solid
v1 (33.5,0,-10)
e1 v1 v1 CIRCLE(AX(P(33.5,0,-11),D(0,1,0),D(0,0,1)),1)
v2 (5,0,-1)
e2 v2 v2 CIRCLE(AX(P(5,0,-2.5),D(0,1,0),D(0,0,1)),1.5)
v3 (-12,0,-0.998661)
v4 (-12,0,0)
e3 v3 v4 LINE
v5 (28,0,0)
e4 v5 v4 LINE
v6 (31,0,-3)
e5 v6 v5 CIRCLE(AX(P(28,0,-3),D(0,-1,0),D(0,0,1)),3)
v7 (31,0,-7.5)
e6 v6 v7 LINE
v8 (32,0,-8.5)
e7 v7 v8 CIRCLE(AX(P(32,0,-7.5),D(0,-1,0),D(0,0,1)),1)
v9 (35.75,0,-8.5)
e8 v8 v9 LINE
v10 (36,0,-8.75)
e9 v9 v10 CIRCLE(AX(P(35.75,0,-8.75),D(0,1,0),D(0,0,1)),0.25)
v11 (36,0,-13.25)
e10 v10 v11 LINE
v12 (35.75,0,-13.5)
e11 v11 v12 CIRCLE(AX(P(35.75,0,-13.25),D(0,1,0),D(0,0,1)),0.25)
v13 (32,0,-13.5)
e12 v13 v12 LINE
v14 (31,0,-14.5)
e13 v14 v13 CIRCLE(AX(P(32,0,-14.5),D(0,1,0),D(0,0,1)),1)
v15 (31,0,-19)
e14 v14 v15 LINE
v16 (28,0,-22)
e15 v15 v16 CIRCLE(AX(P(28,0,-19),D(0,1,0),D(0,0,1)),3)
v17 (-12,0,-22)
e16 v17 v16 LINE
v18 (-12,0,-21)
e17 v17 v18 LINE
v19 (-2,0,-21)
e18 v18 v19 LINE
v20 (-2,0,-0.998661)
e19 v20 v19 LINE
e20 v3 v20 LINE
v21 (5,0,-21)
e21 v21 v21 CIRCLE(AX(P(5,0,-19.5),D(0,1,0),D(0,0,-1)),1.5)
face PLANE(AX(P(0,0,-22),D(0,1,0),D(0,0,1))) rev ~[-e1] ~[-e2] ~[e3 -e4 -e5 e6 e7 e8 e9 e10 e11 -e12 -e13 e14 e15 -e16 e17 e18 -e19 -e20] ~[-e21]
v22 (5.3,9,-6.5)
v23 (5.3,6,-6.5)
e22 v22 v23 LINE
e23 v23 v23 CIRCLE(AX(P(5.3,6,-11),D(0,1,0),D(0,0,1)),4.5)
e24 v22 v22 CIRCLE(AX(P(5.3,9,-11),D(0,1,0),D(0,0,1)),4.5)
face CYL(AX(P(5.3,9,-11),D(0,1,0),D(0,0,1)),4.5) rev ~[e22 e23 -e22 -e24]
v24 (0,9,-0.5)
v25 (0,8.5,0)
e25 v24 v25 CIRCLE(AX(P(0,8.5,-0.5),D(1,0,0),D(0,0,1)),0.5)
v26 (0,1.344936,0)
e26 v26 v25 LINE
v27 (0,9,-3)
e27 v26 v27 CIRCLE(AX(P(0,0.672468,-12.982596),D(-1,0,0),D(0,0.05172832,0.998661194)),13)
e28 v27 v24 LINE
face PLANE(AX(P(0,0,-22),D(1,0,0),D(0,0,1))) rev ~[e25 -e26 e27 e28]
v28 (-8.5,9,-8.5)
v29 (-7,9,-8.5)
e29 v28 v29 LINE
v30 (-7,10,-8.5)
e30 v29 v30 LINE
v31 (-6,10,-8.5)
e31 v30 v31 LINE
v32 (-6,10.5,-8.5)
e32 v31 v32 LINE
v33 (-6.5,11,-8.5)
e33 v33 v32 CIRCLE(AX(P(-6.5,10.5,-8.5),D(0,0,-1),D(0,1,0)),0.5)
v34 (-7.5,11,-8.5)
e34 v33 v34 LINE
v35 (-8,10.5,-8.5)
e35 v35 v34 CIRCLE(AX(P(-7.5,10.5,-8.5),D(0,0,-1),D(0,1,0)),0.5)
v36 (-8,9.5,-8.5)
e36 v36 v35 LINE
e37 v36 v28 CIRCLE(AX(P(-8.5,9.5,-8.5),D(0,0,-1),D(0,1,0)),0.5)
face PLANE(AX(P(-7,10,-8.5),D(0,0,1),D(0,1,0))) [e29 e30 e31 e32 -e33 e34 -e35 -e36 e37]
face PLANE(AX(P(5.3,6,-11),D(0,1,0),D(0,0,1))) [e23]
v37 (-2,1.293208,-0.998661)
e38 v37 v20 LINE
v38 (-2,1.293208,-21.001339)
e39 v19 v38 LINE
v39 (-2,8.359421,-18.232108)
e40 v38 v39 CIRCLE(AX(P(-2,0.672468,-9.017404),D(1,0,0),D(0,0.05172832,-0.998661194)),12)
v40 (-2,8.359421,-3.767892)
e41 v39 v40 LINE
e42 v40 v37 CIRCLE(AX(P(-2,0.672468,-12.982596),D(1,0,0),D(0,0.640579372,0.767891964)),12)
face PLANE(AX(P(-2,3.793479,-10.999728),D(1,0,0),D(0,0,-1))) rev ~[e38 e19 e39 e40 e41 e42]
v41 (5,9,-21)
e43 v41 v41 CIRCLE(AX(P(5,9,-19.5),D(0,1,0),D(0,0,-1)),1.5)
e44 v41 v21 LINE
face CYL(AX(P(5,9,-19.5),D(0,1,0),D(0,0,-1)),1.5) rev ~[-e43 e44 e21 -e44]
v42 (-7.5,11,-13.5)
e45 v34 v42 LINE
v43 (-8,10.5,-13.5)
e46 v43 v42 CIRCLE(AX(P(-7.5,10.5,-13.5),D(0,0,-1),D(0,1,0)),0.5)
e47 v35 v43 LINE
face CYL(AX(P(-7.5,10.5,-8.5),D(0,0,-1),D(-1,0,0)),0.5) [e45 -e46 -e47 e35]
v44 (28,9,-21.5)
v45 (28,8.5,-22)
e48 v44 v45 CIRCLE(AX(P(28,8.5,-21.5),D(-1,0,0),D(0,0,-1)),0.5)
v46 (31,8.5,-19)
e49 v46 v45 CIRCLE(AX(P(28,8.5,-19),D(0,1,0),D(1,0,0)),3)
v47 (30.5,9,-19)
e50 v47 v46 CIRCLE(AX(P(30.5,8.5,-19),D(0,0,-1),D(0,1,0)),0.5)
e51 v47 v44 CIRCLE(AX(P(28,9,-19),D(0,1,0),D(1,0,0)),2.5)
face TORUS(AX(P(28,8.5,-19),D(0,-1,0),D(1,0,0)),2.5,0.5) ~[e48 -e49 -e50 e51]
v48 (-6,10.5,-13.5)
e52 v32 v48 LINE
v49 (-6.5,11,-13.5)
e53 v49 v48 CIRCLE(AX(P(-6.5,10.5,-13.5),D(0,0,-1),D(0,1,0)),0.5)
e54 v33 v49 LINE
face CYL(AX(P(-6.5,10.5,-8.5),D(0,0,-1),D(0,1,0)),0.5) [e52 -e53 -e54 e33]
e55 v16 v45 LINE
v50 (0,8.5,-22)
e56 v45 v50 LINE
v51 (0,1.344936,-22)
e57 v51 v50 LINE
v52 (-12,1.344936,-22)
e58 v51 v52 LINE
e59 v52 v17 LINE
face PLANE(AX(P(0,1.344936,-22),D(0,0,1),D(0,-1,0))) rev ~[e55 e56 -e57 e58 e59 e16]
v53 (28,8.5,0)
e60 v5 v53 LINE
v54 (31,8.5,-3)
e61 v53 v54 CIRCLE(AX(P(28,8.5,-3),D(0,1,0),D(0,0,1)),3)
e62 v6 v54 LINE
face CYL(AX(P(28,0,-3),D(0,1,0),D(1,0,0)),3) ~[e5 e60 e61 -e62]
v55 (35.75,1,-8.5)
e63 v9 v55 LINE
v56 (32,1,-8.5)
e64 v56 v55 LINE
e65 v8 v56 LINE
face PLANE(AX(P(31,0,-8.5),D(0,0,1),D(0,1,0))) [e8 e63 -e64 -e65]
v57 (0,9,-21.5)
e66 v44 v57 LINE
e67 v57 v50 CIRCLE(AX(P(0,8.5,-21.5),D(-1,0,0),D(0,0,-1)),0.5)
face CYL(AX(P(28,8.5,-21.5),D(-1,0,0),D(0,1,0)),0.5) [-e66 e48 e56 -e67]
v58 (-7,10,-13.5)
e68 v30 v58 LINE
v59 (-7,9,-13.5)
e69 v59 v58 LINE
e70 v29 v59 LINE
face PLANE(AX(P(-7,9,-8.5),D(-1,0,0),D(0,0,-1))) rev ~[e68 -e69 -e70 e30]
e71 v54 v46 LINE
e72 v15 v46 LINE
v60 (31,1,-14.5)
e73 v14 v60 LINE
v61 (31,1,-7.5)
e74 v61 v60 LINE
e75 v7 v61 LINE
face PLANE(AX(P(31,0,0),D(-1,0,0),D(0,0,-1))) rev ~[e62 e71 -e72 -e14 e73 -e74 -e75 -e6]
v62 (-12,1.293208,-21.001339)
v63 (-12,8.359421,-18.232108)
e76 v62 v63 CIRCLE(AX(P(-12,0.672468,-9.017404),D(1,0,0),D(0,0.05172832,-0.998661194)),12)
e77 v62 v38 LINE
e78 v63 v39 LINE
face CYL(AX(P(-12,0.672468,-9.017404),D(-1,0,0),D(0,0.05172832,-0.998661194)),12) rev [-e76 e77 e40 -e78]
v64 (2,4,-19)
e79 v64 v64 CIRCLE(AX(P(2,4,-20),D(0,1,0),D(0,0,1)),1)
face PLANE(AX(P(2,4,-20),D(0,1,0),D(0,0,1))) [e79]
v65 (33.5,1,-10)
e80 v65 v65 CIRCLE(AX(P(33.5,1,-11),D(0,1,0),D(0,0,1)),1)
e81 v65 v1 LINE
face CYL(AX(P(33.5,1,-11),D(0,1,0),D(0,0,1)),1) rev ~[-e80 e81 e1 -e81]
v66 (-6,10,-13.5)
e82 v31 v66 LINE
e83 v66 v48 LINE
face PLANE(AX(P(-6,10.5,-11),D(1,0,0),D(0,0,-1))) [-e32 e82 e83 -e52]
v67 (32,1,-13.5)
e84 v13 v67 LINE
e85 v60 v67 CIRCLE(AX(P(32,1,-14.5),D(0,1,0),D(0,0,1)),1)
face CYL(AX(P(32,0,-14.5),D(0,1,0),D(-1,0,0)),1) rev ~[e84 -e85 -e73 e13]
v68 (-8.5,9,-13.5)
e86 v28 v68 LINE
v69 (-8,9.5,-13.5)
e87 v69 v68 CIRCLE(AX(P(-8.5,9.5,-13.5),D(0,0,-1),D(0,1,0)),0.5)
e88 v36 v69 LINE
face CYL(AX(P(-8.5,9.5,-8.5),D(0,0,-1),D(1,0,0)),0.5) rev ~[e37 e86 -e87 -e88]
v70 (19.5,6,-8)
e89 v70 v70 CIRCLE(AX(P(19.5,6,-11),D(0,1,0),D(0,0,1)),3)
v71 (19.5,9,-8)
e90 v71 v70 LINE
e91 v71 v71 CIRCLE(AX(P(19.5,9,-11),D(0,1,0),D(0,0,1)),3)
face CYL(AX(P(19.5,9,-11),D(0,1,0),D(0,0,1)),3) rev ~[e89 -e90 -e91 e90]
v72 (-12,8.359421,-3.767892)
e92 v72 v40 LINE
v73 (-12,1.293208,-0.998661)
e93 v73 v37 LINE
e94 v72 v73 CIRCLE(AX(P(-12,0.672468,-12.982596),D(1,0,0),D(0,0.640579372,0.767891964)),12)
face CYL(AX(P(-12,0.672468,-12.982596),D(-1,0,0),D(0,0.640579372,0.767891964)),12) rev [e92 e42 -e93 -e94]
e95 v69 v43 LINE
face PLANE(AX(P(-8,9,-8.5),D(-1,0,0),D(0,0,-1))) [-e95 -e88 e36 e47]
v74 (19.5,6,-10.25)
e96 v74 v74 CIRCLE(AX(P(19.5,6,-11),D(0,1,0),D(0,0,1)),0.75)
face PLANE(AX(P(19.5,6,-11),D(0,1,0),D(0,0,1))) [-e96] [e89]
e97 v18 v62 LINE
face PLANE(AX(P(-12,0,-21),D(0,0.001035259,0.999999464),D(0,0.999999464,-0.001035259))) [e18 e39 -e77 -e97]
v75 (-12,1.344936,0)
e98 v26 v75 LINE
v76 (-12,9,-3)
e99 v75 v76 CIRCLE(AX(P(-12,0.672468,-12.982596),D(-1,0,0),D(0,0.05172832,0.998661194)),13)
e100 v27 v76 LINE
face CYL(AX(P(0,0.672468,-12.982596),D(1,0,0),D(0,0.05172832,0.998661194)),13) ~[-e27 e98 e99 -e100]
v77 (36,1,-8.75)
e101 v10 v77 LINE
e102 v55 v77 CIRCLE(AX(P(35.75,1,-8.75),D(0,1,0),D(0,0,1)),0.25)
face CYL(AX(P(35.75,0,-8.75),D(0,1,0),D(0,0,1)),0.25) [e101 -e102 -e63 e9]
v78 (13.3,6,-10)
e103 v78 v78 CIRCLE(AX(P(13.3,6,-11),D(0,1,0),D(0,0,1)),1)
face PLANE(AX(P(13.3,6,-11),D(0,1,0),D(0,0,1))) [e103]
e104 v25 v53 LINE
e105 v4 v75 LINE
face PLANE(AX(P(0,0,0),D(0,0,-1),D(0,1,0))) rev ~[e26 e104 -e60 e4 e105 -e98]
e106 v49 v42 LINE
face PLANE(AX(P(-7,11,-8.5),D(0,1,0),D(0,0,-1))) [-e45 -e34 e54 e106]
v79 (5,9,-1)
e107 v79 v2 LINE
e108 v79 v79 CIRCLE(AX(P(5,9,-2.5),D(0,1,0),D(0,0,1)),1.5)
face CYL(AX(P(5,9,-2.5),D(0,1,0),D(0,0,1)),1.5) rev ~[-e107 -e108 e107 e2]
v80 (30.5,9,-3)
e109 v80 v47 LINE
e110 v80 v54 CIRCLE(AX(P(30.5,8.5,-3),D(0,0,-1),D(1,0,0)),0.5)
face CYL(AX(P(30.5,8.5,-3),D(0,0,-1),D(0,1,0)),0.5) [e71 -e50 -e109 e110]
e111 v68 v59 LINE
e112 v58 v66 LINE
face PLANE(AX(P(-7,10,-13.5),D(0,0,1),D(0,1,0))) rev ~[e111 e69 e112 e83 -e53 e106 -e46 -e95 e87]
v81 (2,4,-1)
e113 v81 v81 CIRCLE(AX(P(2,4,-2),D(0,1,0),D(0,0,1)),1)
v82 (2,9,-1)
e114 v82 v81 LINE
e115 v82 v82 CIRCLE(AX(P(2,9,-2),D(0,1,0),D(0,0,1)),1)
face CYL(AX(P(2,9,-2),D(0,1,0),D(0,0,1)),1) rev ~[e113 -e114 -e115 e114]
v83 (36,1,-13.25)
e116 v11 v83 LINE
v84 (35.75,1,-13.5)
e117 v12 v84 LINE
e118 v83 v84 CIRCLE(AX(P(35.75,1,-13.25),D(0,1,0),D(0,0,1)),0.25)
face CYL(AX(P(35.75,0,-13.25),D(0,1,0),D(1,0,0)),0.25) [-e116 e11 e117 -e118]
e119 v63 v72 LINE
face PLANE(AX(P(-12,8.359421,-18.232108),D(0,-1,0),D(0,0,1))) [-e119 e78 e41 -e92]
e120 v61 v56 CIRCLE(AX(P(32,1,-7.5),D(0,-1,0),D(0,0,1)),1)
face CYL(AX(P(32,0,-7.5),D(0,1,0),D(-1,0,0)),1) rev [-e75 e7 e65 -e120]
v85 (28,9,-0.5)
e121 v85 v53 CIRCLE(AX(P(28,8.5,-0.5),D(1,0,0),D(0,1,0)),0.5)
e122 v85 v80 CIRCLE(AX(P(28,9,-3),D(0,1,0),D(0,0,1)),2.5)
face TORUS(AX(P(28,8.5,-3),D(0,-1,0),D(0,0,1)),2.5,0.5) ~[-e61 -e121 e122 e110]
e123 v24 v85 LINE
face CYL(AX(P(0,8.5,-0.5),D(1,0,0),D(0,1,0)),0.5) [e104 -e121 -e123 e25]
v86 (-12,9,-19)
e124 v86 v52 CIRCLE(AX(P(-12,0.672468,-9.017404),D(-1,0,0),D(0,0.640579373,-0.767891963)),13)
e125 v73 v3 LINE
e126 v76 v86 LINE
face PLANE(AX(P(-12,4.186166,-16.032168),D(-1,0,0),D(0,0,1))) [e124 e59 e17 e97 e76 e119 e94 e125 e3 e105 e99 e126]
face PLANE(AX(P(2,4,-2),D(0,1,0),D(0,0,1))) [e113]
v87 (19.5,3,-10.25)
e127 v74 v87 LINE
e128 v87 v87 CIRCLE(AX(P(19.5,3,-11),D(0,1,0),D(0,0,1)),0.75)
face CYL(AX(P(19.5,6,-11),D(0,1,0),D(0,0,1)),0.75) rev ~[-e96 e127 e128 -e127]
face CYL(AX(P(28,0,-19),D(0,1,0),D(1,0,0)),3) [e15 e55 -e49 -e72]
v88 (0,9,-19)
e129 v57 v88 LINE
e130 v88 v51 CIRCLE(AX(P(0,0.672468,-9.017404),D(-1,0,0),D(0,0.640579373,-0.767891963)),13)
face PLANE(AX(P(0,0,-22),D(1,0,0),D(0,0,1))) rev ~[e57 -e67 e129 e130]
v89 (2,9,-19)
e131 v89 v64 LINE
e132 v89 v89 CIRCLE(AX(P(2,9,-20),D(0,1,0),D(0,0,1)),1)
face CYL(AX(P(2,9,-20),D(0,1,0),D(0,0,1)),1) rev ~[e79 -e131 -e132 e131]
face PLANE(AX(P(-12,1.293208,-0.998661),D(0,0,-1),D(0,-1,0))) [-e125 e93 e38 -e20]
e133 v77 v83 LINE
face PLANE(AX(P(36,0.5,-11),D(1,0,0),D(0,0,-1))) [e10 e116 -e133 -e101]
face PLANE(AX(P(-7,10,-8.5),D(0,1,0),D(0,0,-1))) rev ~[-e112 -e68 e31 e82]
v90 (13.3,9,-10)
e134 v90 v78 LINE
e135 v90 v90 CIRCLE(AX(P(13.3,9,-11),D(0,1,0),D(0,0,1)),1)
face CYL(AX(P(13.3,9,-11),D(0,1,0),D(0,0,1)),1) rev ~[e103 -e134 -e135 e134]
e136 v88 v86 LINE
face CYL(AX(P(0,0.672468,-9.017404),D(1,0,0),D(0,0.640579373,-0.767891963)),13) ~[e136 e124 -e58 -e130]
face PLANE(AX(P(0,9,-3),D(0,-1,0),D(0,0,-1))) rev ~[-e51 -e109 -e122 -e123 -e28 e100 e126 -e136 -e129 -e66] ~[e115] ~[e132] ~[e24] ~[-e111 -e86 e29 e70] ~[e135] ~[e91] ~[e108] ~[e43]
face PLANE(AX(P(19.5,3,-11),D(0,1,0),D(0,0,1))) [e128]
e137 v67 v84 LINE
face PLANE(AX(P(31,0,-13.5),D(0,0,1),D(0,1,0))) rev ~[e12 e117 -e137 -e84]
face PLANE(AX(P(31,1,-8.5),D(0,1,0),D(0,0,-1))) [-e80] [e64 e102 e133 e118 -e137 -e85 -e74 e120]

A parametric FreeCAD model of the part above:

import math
import FreeCAD as App
import Part
import Sketcher
from FreeCAD import Vector


def edges_at(feature, points):
    """Names of the edges that pass closest to the given points."""
    edges = feature.Shape.Edges
    near = lambda p: min(range(len(edges)), key=lambda i: edges[i].distToShape(Part.Vertex(*p))[0])
    return sorted({f"Edge{near(p) + 1}" for p in points})

doc = App.newDocument("Part")
params = doc.addObject("Spreadsheet::Sheet", "Params")
for row, (alias, value) in enumerate([
    ("sketch1_width", "31 mm"),
    ("sketch1_height", "22 mm"),
    ("pad1_length", "9 mm"),
    ("sketch2_width", "1 mm"),
    ("sketch2_height", "5 mm"),
    ("pad2_length", "5 mm"),
    ("sketch3_diameter", "2 mm"),
    ("pocket1_length", "5 mm"),
    ("fillet_radius", "1 mm"),
    ("fillet2_radius", "1 mm"),
    ("fillet3_radius", "3 mm"),
    ("fillet4_radius", "3 mm"),
    ("sketch4_radius", "13 mm"),
    ("sketch4_height", "22 mm"),
    ("sketch4_height2", "16 mm"),
    ("pad3_length", "12 mm"),
    ("fillet5_radius", "0.5 mm"),
    ("fillet6_radius", "0.25 mm"),
    ("sketch5_diameter", "6 mm"),
    ("pocket2_length", "3 mm"),
    ("sketch6_diameter", "1.5 mm"),
    ("pocket3_length", "3 mm"),
    ("sketch7_diameter", "3 mm"),
    ("sketch8_diameter", "2 mm"),
    ("pocket5_length", "5 mm"),
    ("sketch9_width", "1 mm"),
    ("sketch9_height", "5 mm"),
    ("pad4_length", "2 mm"),
    ("sketch10_width", "1 mm"),
    ("sketch10_height", "5 mm"),
    ("pad5_length", "1 mm"),
    ("fillet7_radius", "0.5 mm"),
    ("fillet8_radius", "0.5 mm"),
    ("fillet9_radius", "0.5 mm"),
    ("sketch11_radius", "12 mm"),
    ("pocket6_length", "10 mm"),
    ("sketch12_diameter", "9 mm"),
    ("sketch12_diameter2", "2 mm"),
    ("pocket7_length", "3 mm"),
], start=1):
    params.set(f"A{row}", alias)
    params.set(f"B{row}", "=" + value)
    params.setAlias(f"B{row}", alias)

body = doc.addObject("PartDesign::Body", "Body")

# Sketch on XZ plane
sketch1 = body.newObject("Sketcher::SketchObject", "Sketch")
sketch1.AttachmentSupport = (doc.getObject("XZ_Plane"), [""])
sketch1.MapMode = "FlatFace"
sketch1.addGeometry(Part.LineSegment(Vector(31, -22, 0), Vector(0, -22, 0)), False)
sketch1.addGeometry(Part.LineSegment(Vector(0, -22, 0), Vector(0, 0, 0)), False)
sketch1.addGeometry(Part.LineSegment(Vector(0, 0, 0), Vector(31, 0, 0)), False)
sketch1.addGeometry(Part.LineSegment(Vector(31, 0, 0), Vector(31, -22, 0)), False)
sketch1.addConstraint(Sketcher.Constraint("Coincident", 0, 2, 1, 1))
sketch1.addConstraint(Sketcher.Constraint("Coincident", 1, 2, 2, 1))
sketch1.addConstraint(Sketcher.Constraint("Coincident", 2, 2, 3, 1))
sketch1.addConstraint(Sketcher.Constraint("Coincident", 3, 2, 0, 1))
sketch1.addConstraint(Sketcher.Constraint("Horizontal", 0))
sketch1.addConstraint(Sketcher.Constraint("Vertical", 1))
sketch1.addConstraint(Sketcher.Constraint("Horizontal", 2))
sketch1.addConstraint(Sketcher.Constraint("Vertical", 3))
sketch1.addConstraint(Sketcher.Constraint("Coincident", 1, 2, -1, 1))
sketch1.addConstraint(Sketcher.Constraint("DistanceX", 0, 2, 0, 1, 31.0))
sketch1.addConstraint(Sketcher.Constraint("DistanceY", 1, 1, 1, 2, 22.0))
sketch1.setExpression("Constraints[9]", "Params.sketch1_width")
sketch1.setExpression("Constraints[10]", "Params.sketch1_height")
pad1 = body.newObject("PartDesign::Pad", "Pad")
pad1.Profile = sketch1
pad1.setExpression("Length", "Params.pad1_length")
pad1.Reversed = True

# Sketch on YZ plane
sketch2 = body.newObject("Sketcher::SketchObject", "Sketch001")
sketch2.AttachmentSupport = (doc.getObject("YZ_Plane"), [""])
sketch2.MapMode = "FlatFace"
sketch2.AttachmentOffset = App.Placement(Vector(0, 0, 31), App.Rotation())
sketch2.addGeometry(Part.LineSegment(Vector(1, -8.5, 0), Vector(0, -8.5, 0)), False)
sketch2.addGeometry(Part.LineSegment(Vector(0, -8.5, 0), Vector(0, -13.5, 0)), False)
sketch2.addGeometry(Part.LineSegment(Vector(0, -13.5, 0), Vector(1, -13.5, 0)), False)
sketch2.addGeometry(Part.LineSegment(Vector(1, -13.5, 0), Vector(1, -8.5, 0)), False)
sketch2.addConstraint(Sketcher.Constraint("Coincident", 0, 2, 1, 1))
sketch2.addConstraint(Sketcher.Constraint("Coincident", 1, 2, 2, 1))
sketch2.addConstraint(Sketcher.Constraint("Coincident", 2, 2, 3, 1))
sketch2.addConstraint(Sketcher.Constraint("Coincident", 3, 2, 0, 1))
sketch2.addConstraint(Sketcher.Constraint("Horizontal", 0))
sketch2.addConstraint(Sketcher.Constraint("Vertical", 1))
sketch2.addConstraint(Sketcher.Constraint("Horizontal", 2))
sketch2.addConstraint(Sketcher.Constraint("Vertical", 3))
sketch2.addConstraint(Sketcher.Constraint("PointOnObject", 0, 2, -2))
sketch2.addConstraint(Sketcher.Constraint("DistanceX", 0, 2, 0, 1, 1.0))
sketch2.addConstraint(Sketcher.Constraint("DistanceY", 1, 2, 1, 1, 5.0))
sketch2.addConstraint(Sketcher.Constraint("DistanceY", 0, 2, -1, 1, 8.5))
sketch2.setExpression("Constraints[9]", "Params.sketch2_width")
sketch2.setExpression("Constraints[10]", "Params.sketch2_height")
pad2 = body.newObject("PartDesign::Pad", "Pad001")
pad2.Profile = sketch2
pad2.setExpression("Length", "Params.pad2_length")

# Sketch on XZ plane
sketch3 = body.newObject("Sketcher::SketchObject", "Sketch002")
sketch3.AttachmentSupport = (doc.getObject("XZ_Plane"), [""])
sketch3.MapMode = "FlatFace"
sketch3.AttachmentOffset = App.Placement(Vector(0, 0, -1), App.Rotation())
sketch3.addGeometry(Part.Circle(Vector(33.5, -11, 0), Vector(0, 0, 1), 1), False)
sketch3.addConstraint(Sketcher.Constraint("Diameter", 0, 2.0))
sketch3.addConstraint(Sketcher.Constraint("DistanceY", 0, 3, -1, 1, 11.0))
sketch3.addConstraint(Sketcher.Constraint("DistanceX", -1, 1, 0, 3, 33.5))
sketch3.setExpression("Constraints[0]", "Params.sketch3_diameter")
pocket1 = body.newObject("PartDesign::Pocket", "Pocket")
pocket1.Profile = sketch3
pocket1.setExpression("Length", "Params.pocket1_length")
pocket1.Reversed = True
doc.recompute()

fillet = body.newObject("PartDesign::Fillet", "Fillet")
fillet.Base = (pocket1, edges_at(pocket1, [(31, 0.5, -8.5)]))
fillet.setExpression("Radius", "Params.fillet_radius")
doc.recompute()

fillet2 = body.newObject("PartDesign::Fillet", "Fillet001")
fillet2.Base = (fillet, edges_at(fillet, [(31, 0.5, -13.5)]))
fillet2.setExpression("Radius", "Params.fillet2_radius")
doc.recompute()

fillet3 = body.newObject("PartDesign::Fillet", "Fillet002")
fillet3.Base = (fillet2, edges_at(fillet2, [(31, 4.5, 0)]))
fillet3.setExpression("Radius", "Params.fillet3_radius")
doc.recompute()

fillet4 = body.newObject("PartDesign::Fillet", "Fillet003")
fillet4.Base = (fillet3, edges_at(fillet3, [(31, 4.5, -22)]))
fillet4.setExpression("Radius", "Params.fillet4_radius")

# Sketch on YZ plane
sketch4 = body.newObject("Sketcher::SketchObject", "Sketch003")
sketch4.AttachmentSupport = (doc.getObject("YZ_Plane"), [""])
sketch4.MapMode = "FlatFace"
sketch4.addGeometry(Part.LineSegment(Vector(0, -22, 0), Vector(0, 0, 0)), False)
sketch4.addGeometry(Part.LineSegment(Vector(0, 0, 0), Vector(1.344936, 0, 0)), False)
sketch4.addGeometry(Part.ArcOfCircle(Part.Circle(Vector(0.672468, -12.982596, 0), Vector(0, 0, 1), 13), math.radians(50.164965), math.radians(87.034862)), False)
sketch4.addGeometry(Part.LineSegment(Vector(9, -3, 0), Vector(9, -19, 0)), False)
sketch4.addGeometry(Part.ArcOfCircle(Part.Circle(Vector(0.672468, -9.017404, 0), Vector(0, 0, 1), 13), math.radians(-87.034862), math.radians(-50.164965)), False)
sketch4.addGeometry(Part.LineSegment(Vector(1.344936, -22, 0), Vector(0, -22, 0)), False)
sketch4.addConstraint(Sketcher.Constraint("Coincident", 0, 2, 1, 1))
sketch4.addConstraint(Sketcher.Constraint("Coincident", 1, 2, 2, 2))
sketch4.addConstraint(Sketcher.Constraint("Coincident", 2, 1, 3, 1))
sketch4.addConstraint(Sketcher.Constraint("Coincident", 3, 2, 4, 2))
sketch4.addConstraint(Sketcher.Constraint("Coincident", 4, 1, 5, 1))
sketch4.addConstraint(Sketcher.Constraint("Coincident", 5, 2, 0, 1))
sketch4.addConstraint(Sketcher.Constraint("Vertical", 0))
sketch4.addConstraint(Sketcher.Constraint("Horizontal", 1))
sketch4.addConstraint(Sketcher.Constraint("Vertical", 3))
sketch4.addConstraint(Sketcher.Constraint("Horizontal", 5))
sketch4.addConstraint(Sketcher.Constraint("Coincident", 0, 2, -1, 1))
sketch4.addConstraint(Sketcher.Constraint("Equal", 2, 4))
sketch4.addConstraint(Sketcher.Constraint("Vertical", 2, 3, 4, 3))
sketch4.addConstraint(Sketcher.Constraint("Vertical", 1, 2, 4, 1))
sketch4.addConstraint(Sketcher.Constraint("Radius", 2, 13.0))
sketch4.addConstraint(Sketcher.Constraint("DistanceY", 0, 1, 0, 2, 22.0))
sketch4.addConstraint(Sketcher.Constraint("DistanceY", 3, 2, 3, 1, 16.0))
sketch4.addConstraint(Sketcher.Constraint("DistanceX", -1, 1, 2, 1, 9.0))
sketch4.addConstraint(Sketcher.Constraint("DistanceX", 1, 1, 1, 2, 1.344936))
sketch4.setExpression("Constraints[14]", "Params.sketch4_radius")
sketch4.setExpression("Constraints[15]", "Params.sketch4_height")
sketch4.setExpression("Constraints[16]", "Params.sketch4_height2")
pad3 = body.newObject("PartDesign::Pad", "Pad002")
pad3.Profile = sketch4
pad3.setExpression("Length", "Params.pad3_length")
pad3.Reversed = True
doc.recompute()

fillet5 = body.newObject("PartDesign::Fillet", "Fillet004")
fillet5.Base = (pad3, edges_at(pad3, [
    (14, 9, -22),
    (30.121, 9, -21.121),
    (31, 9, -11),
    (30.121, 9, -0.879),
    (14, 9, 0),
]))
fillet5.setExpression("Radius", "Params.fillet5_radius")
doc.recompute()

fillet6 = body.newObject("PartDesign::Fillet", "Fillet005")
fillet6.Base = (fillet5, edges_at(fillet5, [(36, 0.5, -13.5), (36, 0.5, -8.5)]))
fillet6.setExpression("Radius", "Params.fillet6_radius")

# Sketch on XZ plane
sketch5 = body.newObject("Sketcher::SketchObject", "Sketch004")
sketch5.AttachmentSupport = (doc.getObject("XZ_Plane"), [""])
sketch5.MapMode = "FlatFace"
sketch5.AttachmentOffset = App.Placement(Vector(0, 0, -9), App.Rotation())
sketch5.addGeometry(Part.Circle(Vector(19.5, -11, 0), Vector(0, 0, 1), 3), False)
sketch5.addConstraint(Sketcher.Constraint("Diameter", 0, 6.0))
sketch5.addConstraint(Sketcher.Constraint("DistanceY", 0, 3, -1, 1, 11.0))
sketch5.addConstraint(Sketcher.Constraint("DistanceX", -1, 1, 0, 3, 19.5))
sketch5.setExpression("Constraints[0]", "Params.sketch5_diameter")
pocket2 = body.newObject("PartDesign::Pocket", "Pocket001")
pocket2.Profile = sketch5
pocket2.setExpression("Length", "Params.pocket2_length")
pocket2.Reversed = True

# Sketch on XZ plane
sketch6 = body.newObject("Sketcher::SketchObject", "Sketch005")
sketch6.AttachmentSupport = (doc.getObject("XZ_Plane"), [""])
sketch6.MapMode = "FlatFace"
sketch6.AttachmentOffset = App.Placement(Vector(0, 0, -6), App.Rotation())
sketch6.addGeometry(Part.Circle(Vector(19.5, -11, 0), Vector(0, 0, 1), 0.75), False)
sketch6.addConstraint(Sketcher.Constraint("Diameter", 0, 1.5))
sketch6.addConstraint(Sketcher.Constraint("DistanceY", 0, 3, -1, 1, 11.0))
sketch6.addConstraint(Sketcher.Constraint("DistanceX", -1, 1, 0, 3, 19.5))
sketch6.setExpression("Constraints[0]", "Params.sketch6_diameter")
pocket3 = body.newObject("PartDesign::Pocket", "Pocket002")
pocket3.Profile = sketch6
pocket3.setExpression("Length", "Params.pocket3_length")
pocket3.Reversed = True

# Sketch on XZ plane
sketch7 = body.newObject("Sketcher::SketchObject", "Sketch006")
sketch7.AttachmentSupport = (doc.getObject("XZ_Plane"), [""])
sketch7.MapMode = "FlatFace"
sketch7.AttachmentOffset = App.Placement(Vector(0, 0, -9), App.Rotation())
sketch7.addGeometry(Part.Circle(Vector(5, -19.5, 0), Vector(0, 0, 1), 1.5), False)
sketch7.addGeometry(Part.Circle(Vector(5, -2.5, 0), Vector(0, 0, 1), 1.5), False)
sketch7.addConstraint(Sketcher.Constraint("Equal", 0, 1))
sketch7.addConstraint(Sketcher.Constraint("Vertical", 0, 3, 1, 3))
sketch7.addConstraint(Sketcher.Constraint("Diameter", 0, 3.0))
sketch7.addConstraint(Sketcher.Constraint("DistanceX", -1, 1, 0, 3, 5.0))
sketch7.addConstraint(Sketcher.Constraint("DistanceY", 0, 3, 1, 3, 17.0))
sketch7.addConstraint(Sketcher.Constraint("DistanceY", 0, 3, -1, 1, 19.5))
sketch7.setExpression("Constraints[2]", "Params.sketch7_diameter")
pocket4 = body.newObject("PartDesign::Pocket", "Pocket003")
pocket4.Profile = sketch7
pocket4.Type = "ThroughAll"
pocket4.Reversed = True

# Sketch on XZ plane
sketch8 = body.newObject("Sketcher::SketchObject", "Sketch007")
sketch8.AttachmentSupport = (doc.getObject("XZ_Plane"), [""])
sketch8.MapMode = "FlatFace"
sketch8.AttachmentOffset = App.Placement(Vector(0, 0, -9), App.Rotation())
sketch8.addGeometry(Part.Circle(Vector(2, -2, 0), Vector(0, 0, 1), 1), False)
sketch8.addGeometry(Part.Circle(Vector(2, -20, 0), Vector(0, 0, 1), 1), False)
sketch8.addConstraint(Sketcher.Constraint("Equal", 0, 1))
sketch8.addConstraint(Sketcher.Constraint("Vertical", 0, 3, 1, 3))
sketch8.addConstraint(Sketcher.Constraint("Diameter", 0, 2.0))
sketch8.addConstraint(Sketcher.Constraint("DistanceX", -1, 1, 0, 3, 2.0))
sketch8.addConstraint(Sketcher.Constraint("DistanceY", 0, 3, -1, 1, 2.0))
sketch8.addConstraint(Sketcher.Constraint("DistanceY", 1, 3, -1, 1, 20.0))
sketch8.setExpression("Constraints[2]", "Params.sketch8_diameter")
pocket5 = body.newObject("PartDesign::Pocket", "Pocket004")
pocket5.Profile = sketch8
pocket5.setExpression("Length", "Params.pocket5_length")
pocket5.Reversed = True

# Sketch on XZ plane
sketch9 = body.newObject("Sketcher::SketchObject", "Sketch008")
sketch9.AttachmentSupport = (doc.getObject("XZ_Plane"), [""])
sketch9.MapMode = "FlatFace"
sketch9.AttachmentOffset = App.Placement(Vector(0, 0, -9), App.Rotation())
sketch9.addGeometry(Part.LineSegment(Vector(-8, -13.5, 0), Vector(-8, -8.5, 0)), False)
sketch9.addGeometry(Part.LineSegment(Vector(-8, -8.5, 0), Vector(-7, -8.5, 0)), False)
sketch9.addGeometry(Part.LineSegment(Vector(-7, -8.5, 0), Vector(-7, -13.5, 0)), False)
sketch9.addGeometry(Part.LineSegment(Vector(-7, -13.5, 0), Vector(-8, -13.5, 0)), False)
sketch9.addConstraint(Sketcher.Constraint("Coincident", 0, 2, 1, 1))
sketch9.addConstraint(Sketcher.Constraint("Coincident", 1, 2, 2, 1))
sketch9.addConstraint(Sketcher.Constraint("Coincident", 2, 2, 3, 1))
sketch9.addConstraint(Sketcher.Constraint("Coincident", 3, 2, 0, 1))
sketch9.addConstraint(Sketcher.Constraint("Vertical", 0))
sketch9.addConstraint(Sketcher.Constraint("Horizontal", 1))
sketch9.addConstraint(Sketcher.Constraint("Vertical", 2))
sketch9.addConstraint(Sketcher.Constraint("Horizontal", 3))
sketch9.addConstraint(Sketcher.Constraint("DistanceX", 1, 1, 1, 2, 1.0))
sketch9.addConstraint(Sketcher.Constraint("DistanceY", 0, 1, 0, 2, 5.0))
sketch9.addConstraint(Sketcher.Constraint("DistanceX", 0, 2, -1, 1, 8.0))
sketch9.addConstraint(Sketcher.Constraint("DistanceY", 0, 2, -1, 1, 8.5))
sketch9.setExpression("Constraints[8]", "Params.sketch9_width")
sketch9.setExpression("Constraints[9]", "Params.sketch9_height")
pad4 = body.newObject("PartDesign::Pad", "Pad003")
pad4.Profile = sketch9
pad4.setExpression("Length", "Params.pad4_length")
pad4.Reversed = True

# Sketch on YZ plane
sketch10 = body.newObject("Sketcher::SketchObject", "Sketch009")
sketch10.AttachmentSupport = (doc.getObject("YZ_Plane"), [""])
sketch10.MapMode = "FlatFace"
sketch10.AttachmentOffset = App.Placement(Vector(0, 0, -7), App.Rotation())
sketch10.addGeometry(Part.LineSegment(Vector(11, -8.5, 0), Vector(10, -8.5, 0)), False)
sketch10.addGeometry(Part.LineSegment(Vector(10, -8.5, 0), Vector(10, -13.5, 0)), False)
sketch10.addGeometry(Part.LineSegment(Vector(10, -13.5, 0), Vector(11, -13.5, 0)), False)
sketch10.addGeometry(Part.LineSegment(Vector(11, -13.5, 0), Vector(11, -8.5, 0)), False)
sketch10.addConstraint(Sketcher.Constraint("Coincident", 0, 2, 1, 1))
sketch10.addConstraint(Sketcher.Constraint("Coincident", 1, 2, 2, 1))
sketch10.addConstraint(Sketcher.Constraint("Coincident", 2, 2, 3, 1))
sketch10.addConstraint(Sketcher.Constraint("Coincident", 3, 2, 0, 1))
sketch10.addConstraint(Sketcher.Constraint("Horizontal", 0))
sketch10.addConstraint(Sketcher.Constraint("Vertical", 1))
sketch10.addConstraint(Sketcher.Constraint("Horizontal", 2))
sketch10.addConstraint(Sketcher.Constraint("Vertical", 3))
sketch10.addConstraint(Sketcher.Constraint("DistanceX", 0, 2, 0, 1, 1.0))
sketch10.addConstraint(Sketcher.Constraint("DistanceY", 1, 2, 1, 1, 5.0))
sketch10.addConstraint(Sketcher.Constraint("DistanceX", -1, 1, 0, 2, 10.0))
sketch10.addConstraint(Sketcher.Constraint("DistanceY", 0, 2, -1, 1, 8.5))
sketch10.setExpression("Constraints[8]", "Params.sketch10_width")
sketch10.setExpression("Constraints[9]", "Params.sketch10_height")
pad5 = body.newObject("PartDesign::Pad", "Pad004")
pad5.Profile = sketch10
pad5.setExpression("Length", "Params.pad5_length")
doc.recompute()

fillet7 = body.newObject("PartDesign::Fillet", "Fillet006")
fillet7.Base = (pad5, edges_at(pad5, [(-8, 11, -11)]))
fillet7.setExpression("Radius", "Params.fillet7_radius")
doc.recompute()

fillet8 = body.newObject("PartDesign::Fillet", "Fillet007")
fillet8.Base = (fillet7, edges_at(fillet7, [(-8, 9, -11)]))
fillet8.setExpression("Radius", "Params.fillet8_radius")
doc.recompute()

fillet9 = body.newObject("PartDesign::Fillet", "Fillet008")
fillet9.Base = (fillet8, edges_at(fillet8, [(-6, 11, -11)]))
fillet9.setExpression("Radius", "Params.fillet9_radius")

# Sketch on YZ plane
sketch11 = body.newObject("Sketcher::SketchObject", "Sketch010")
sketch11.AttachmentSupport = (doc.getObject("YZ_Plane"), [""])
sketch11.MapMode = "FlatFace"
sketch11.AttachmentOffset = App.Placement(Vector(0, 0, -12), App.Rotation())
sketch11.addGeometry(Part.LineSegment(Vector(8.359421, -3.767892, 0), Vector(8.359421, -18.232108, 0)), False)
sketch11.addGeometry(Part.ArcOfCircle(Part.Circle(Vector(0.672468, -9.017404, 0), Vector(0, 0, 1), 12), math.radians(-87.034862), math.radians(-50.164965)), False)
sketch11.addGeometry(Part.LineSegment(Vector(1.293208, -21.001339, 0), Vector(0, -21, 0)), False)
sketch11.addGeometry(Part.LineSegment(Vector(0, -21, 0), Vector(0, -0.998661, 0)), False)
sketch11.addGeometry(Part.LineSegment(Vector(0, -0.998661, 0), Vector(1.293208, -0.998661, 0)), False)
sketch11.addGeometry(Part.ArcOfCircle(Part.Circle(Vector(0.672468, -12.982596, 0), Vector(0, 0, 1), 12), math.radians(50.164965), math.radians(87.034862)), False)
sketch11.addConstraint(Sketcher.Constraint("Coincident", 0, 2, 1, 2))
sketch11.addConstraint(Sketcher.Constraint("Coincident", 1, 1, 2, 1))
sketch11.addConstraint(Sketcher.Constraint("Coincident", 2, 2, 3, 1))
sketch11.addConstraint(Sketcher.Constraint("Coincident", 3, 2, 4, 1))
sketch11.addConstraint(Sketcher.Constraint("Coincident", 4, 2, 5, 2))
sketch11.addConstraint(Sketcher.Constraint("Coincident", 5, 1, 0, 1))
sketch11.addConstraint(Sketcher.Constraint("Vertical", 0))
sketch11.addConstraint(Sketcher.Constraint("Vertical", 3))
sketch11.addConstraint(Sketcher.Constraint("Horizontal", 4))
sketch11.addConstraint(Sketcher.Constraint("Equal", 1, 5))
sketch11.addConstraint(Sketcher.Constraint("PointOnObject", 2, 2, -2))
sketch11.addConstraint(Sketcher.Constraint("Vertical", 1, 3, 5, 3))
sketch11.addConstraint(Sketcher.Constraint("Vertical", 1, 1, 4, 2))
sketch11.addConstraint(Sketcher.Constraint("Radius", 1, 12.0))
sketch11.addConstraint(Sketcher.Constraint("DistanceY", 2, 2, -1, 1, 21.0))
sketch11.addConstraint(Sketcher.Constraint("DistanceY", 3, 1, 3, 2, 20.001339))
sketch11.addConstraint(Sketcher.Constraint("Distance", 2, 1.293209))
sketch11.addConstraint(Sketcher.Constraint("DistanceY", 0, 2, 0, 1, 14.464216))
sketch11.addConstraint(Sketcher.Constraint("DistanceX", -1, 1, 1, 3, 0.672468))
sketch11.addConstraint(Sketcher.Constraint("DistanceX", -1, 1, 0, 2, 8.359421))
sketch11.setExpression("Constraints[13]", "Params.sketch11_radius")
pocket6 = body.newObject("PartDesign::Pocket", "Pocket005")
pocket6.Profile = sketch11
pocket6.setExpression("Length", "Params.pocket6_length")
pocket6.Reversed = True

# Sketch on XZ plane
sketch12 = body.newObject("Sketcher::SketchObject", "Sketch011")
sketch12.AttachmentSupport = (doc.getObject("XZ_Plane"), [""])
sketch12.MapMode = "FlatFace"
sketch12.AttachmentOffset = App.Placement(Vector(0, 0, -9), App.Rotation())
sketch12.addGeometry(Part.Circle(Vector(5.3, -11, 0), Vector(0, 0, 1), 4.5), False)
sketch12.addGeometry(Part.Circle(Vector(13.3, -11, 0), Vector(0, 0, 1), 1), False)
sketch12.addConstraint(Sketcher.Constraint("Horizontal", 0, 3, 1, 3))
sketch12.addConstraint(Sketcher.Constraint("Diameter", 0, 9.0))
sketch12.addConstraint(Sketcher.Constraint("Diameter", 1, 2.0))
sketch12.addConstraint(Sketcher.Constraint("DistanceY", 0, 3, -1, 1, 11.0))
sketch12.addConstraint(Sketcher.Constraint("DistanceX", 0, 3, 1, 3, 8.0))
sketch12.addConstraint(Sketcher.Constraint("DistanceX", -1, 1, 0, 3, 5.3))
sketch12.setExpression("Constraints[1]", "Params.sketch12_diameter")
sketch12.setExpression("Constraints[2]", "Params.sketch12_diameter2")
pocket7 = body.newObject("PartDesign::Pocket", "Pocket006")
pocket7.Profile = sketch12
pocket7.setExpression("Length", "Params.pocket7_length")
pocket7.Reversed = True

doc.recompute()
